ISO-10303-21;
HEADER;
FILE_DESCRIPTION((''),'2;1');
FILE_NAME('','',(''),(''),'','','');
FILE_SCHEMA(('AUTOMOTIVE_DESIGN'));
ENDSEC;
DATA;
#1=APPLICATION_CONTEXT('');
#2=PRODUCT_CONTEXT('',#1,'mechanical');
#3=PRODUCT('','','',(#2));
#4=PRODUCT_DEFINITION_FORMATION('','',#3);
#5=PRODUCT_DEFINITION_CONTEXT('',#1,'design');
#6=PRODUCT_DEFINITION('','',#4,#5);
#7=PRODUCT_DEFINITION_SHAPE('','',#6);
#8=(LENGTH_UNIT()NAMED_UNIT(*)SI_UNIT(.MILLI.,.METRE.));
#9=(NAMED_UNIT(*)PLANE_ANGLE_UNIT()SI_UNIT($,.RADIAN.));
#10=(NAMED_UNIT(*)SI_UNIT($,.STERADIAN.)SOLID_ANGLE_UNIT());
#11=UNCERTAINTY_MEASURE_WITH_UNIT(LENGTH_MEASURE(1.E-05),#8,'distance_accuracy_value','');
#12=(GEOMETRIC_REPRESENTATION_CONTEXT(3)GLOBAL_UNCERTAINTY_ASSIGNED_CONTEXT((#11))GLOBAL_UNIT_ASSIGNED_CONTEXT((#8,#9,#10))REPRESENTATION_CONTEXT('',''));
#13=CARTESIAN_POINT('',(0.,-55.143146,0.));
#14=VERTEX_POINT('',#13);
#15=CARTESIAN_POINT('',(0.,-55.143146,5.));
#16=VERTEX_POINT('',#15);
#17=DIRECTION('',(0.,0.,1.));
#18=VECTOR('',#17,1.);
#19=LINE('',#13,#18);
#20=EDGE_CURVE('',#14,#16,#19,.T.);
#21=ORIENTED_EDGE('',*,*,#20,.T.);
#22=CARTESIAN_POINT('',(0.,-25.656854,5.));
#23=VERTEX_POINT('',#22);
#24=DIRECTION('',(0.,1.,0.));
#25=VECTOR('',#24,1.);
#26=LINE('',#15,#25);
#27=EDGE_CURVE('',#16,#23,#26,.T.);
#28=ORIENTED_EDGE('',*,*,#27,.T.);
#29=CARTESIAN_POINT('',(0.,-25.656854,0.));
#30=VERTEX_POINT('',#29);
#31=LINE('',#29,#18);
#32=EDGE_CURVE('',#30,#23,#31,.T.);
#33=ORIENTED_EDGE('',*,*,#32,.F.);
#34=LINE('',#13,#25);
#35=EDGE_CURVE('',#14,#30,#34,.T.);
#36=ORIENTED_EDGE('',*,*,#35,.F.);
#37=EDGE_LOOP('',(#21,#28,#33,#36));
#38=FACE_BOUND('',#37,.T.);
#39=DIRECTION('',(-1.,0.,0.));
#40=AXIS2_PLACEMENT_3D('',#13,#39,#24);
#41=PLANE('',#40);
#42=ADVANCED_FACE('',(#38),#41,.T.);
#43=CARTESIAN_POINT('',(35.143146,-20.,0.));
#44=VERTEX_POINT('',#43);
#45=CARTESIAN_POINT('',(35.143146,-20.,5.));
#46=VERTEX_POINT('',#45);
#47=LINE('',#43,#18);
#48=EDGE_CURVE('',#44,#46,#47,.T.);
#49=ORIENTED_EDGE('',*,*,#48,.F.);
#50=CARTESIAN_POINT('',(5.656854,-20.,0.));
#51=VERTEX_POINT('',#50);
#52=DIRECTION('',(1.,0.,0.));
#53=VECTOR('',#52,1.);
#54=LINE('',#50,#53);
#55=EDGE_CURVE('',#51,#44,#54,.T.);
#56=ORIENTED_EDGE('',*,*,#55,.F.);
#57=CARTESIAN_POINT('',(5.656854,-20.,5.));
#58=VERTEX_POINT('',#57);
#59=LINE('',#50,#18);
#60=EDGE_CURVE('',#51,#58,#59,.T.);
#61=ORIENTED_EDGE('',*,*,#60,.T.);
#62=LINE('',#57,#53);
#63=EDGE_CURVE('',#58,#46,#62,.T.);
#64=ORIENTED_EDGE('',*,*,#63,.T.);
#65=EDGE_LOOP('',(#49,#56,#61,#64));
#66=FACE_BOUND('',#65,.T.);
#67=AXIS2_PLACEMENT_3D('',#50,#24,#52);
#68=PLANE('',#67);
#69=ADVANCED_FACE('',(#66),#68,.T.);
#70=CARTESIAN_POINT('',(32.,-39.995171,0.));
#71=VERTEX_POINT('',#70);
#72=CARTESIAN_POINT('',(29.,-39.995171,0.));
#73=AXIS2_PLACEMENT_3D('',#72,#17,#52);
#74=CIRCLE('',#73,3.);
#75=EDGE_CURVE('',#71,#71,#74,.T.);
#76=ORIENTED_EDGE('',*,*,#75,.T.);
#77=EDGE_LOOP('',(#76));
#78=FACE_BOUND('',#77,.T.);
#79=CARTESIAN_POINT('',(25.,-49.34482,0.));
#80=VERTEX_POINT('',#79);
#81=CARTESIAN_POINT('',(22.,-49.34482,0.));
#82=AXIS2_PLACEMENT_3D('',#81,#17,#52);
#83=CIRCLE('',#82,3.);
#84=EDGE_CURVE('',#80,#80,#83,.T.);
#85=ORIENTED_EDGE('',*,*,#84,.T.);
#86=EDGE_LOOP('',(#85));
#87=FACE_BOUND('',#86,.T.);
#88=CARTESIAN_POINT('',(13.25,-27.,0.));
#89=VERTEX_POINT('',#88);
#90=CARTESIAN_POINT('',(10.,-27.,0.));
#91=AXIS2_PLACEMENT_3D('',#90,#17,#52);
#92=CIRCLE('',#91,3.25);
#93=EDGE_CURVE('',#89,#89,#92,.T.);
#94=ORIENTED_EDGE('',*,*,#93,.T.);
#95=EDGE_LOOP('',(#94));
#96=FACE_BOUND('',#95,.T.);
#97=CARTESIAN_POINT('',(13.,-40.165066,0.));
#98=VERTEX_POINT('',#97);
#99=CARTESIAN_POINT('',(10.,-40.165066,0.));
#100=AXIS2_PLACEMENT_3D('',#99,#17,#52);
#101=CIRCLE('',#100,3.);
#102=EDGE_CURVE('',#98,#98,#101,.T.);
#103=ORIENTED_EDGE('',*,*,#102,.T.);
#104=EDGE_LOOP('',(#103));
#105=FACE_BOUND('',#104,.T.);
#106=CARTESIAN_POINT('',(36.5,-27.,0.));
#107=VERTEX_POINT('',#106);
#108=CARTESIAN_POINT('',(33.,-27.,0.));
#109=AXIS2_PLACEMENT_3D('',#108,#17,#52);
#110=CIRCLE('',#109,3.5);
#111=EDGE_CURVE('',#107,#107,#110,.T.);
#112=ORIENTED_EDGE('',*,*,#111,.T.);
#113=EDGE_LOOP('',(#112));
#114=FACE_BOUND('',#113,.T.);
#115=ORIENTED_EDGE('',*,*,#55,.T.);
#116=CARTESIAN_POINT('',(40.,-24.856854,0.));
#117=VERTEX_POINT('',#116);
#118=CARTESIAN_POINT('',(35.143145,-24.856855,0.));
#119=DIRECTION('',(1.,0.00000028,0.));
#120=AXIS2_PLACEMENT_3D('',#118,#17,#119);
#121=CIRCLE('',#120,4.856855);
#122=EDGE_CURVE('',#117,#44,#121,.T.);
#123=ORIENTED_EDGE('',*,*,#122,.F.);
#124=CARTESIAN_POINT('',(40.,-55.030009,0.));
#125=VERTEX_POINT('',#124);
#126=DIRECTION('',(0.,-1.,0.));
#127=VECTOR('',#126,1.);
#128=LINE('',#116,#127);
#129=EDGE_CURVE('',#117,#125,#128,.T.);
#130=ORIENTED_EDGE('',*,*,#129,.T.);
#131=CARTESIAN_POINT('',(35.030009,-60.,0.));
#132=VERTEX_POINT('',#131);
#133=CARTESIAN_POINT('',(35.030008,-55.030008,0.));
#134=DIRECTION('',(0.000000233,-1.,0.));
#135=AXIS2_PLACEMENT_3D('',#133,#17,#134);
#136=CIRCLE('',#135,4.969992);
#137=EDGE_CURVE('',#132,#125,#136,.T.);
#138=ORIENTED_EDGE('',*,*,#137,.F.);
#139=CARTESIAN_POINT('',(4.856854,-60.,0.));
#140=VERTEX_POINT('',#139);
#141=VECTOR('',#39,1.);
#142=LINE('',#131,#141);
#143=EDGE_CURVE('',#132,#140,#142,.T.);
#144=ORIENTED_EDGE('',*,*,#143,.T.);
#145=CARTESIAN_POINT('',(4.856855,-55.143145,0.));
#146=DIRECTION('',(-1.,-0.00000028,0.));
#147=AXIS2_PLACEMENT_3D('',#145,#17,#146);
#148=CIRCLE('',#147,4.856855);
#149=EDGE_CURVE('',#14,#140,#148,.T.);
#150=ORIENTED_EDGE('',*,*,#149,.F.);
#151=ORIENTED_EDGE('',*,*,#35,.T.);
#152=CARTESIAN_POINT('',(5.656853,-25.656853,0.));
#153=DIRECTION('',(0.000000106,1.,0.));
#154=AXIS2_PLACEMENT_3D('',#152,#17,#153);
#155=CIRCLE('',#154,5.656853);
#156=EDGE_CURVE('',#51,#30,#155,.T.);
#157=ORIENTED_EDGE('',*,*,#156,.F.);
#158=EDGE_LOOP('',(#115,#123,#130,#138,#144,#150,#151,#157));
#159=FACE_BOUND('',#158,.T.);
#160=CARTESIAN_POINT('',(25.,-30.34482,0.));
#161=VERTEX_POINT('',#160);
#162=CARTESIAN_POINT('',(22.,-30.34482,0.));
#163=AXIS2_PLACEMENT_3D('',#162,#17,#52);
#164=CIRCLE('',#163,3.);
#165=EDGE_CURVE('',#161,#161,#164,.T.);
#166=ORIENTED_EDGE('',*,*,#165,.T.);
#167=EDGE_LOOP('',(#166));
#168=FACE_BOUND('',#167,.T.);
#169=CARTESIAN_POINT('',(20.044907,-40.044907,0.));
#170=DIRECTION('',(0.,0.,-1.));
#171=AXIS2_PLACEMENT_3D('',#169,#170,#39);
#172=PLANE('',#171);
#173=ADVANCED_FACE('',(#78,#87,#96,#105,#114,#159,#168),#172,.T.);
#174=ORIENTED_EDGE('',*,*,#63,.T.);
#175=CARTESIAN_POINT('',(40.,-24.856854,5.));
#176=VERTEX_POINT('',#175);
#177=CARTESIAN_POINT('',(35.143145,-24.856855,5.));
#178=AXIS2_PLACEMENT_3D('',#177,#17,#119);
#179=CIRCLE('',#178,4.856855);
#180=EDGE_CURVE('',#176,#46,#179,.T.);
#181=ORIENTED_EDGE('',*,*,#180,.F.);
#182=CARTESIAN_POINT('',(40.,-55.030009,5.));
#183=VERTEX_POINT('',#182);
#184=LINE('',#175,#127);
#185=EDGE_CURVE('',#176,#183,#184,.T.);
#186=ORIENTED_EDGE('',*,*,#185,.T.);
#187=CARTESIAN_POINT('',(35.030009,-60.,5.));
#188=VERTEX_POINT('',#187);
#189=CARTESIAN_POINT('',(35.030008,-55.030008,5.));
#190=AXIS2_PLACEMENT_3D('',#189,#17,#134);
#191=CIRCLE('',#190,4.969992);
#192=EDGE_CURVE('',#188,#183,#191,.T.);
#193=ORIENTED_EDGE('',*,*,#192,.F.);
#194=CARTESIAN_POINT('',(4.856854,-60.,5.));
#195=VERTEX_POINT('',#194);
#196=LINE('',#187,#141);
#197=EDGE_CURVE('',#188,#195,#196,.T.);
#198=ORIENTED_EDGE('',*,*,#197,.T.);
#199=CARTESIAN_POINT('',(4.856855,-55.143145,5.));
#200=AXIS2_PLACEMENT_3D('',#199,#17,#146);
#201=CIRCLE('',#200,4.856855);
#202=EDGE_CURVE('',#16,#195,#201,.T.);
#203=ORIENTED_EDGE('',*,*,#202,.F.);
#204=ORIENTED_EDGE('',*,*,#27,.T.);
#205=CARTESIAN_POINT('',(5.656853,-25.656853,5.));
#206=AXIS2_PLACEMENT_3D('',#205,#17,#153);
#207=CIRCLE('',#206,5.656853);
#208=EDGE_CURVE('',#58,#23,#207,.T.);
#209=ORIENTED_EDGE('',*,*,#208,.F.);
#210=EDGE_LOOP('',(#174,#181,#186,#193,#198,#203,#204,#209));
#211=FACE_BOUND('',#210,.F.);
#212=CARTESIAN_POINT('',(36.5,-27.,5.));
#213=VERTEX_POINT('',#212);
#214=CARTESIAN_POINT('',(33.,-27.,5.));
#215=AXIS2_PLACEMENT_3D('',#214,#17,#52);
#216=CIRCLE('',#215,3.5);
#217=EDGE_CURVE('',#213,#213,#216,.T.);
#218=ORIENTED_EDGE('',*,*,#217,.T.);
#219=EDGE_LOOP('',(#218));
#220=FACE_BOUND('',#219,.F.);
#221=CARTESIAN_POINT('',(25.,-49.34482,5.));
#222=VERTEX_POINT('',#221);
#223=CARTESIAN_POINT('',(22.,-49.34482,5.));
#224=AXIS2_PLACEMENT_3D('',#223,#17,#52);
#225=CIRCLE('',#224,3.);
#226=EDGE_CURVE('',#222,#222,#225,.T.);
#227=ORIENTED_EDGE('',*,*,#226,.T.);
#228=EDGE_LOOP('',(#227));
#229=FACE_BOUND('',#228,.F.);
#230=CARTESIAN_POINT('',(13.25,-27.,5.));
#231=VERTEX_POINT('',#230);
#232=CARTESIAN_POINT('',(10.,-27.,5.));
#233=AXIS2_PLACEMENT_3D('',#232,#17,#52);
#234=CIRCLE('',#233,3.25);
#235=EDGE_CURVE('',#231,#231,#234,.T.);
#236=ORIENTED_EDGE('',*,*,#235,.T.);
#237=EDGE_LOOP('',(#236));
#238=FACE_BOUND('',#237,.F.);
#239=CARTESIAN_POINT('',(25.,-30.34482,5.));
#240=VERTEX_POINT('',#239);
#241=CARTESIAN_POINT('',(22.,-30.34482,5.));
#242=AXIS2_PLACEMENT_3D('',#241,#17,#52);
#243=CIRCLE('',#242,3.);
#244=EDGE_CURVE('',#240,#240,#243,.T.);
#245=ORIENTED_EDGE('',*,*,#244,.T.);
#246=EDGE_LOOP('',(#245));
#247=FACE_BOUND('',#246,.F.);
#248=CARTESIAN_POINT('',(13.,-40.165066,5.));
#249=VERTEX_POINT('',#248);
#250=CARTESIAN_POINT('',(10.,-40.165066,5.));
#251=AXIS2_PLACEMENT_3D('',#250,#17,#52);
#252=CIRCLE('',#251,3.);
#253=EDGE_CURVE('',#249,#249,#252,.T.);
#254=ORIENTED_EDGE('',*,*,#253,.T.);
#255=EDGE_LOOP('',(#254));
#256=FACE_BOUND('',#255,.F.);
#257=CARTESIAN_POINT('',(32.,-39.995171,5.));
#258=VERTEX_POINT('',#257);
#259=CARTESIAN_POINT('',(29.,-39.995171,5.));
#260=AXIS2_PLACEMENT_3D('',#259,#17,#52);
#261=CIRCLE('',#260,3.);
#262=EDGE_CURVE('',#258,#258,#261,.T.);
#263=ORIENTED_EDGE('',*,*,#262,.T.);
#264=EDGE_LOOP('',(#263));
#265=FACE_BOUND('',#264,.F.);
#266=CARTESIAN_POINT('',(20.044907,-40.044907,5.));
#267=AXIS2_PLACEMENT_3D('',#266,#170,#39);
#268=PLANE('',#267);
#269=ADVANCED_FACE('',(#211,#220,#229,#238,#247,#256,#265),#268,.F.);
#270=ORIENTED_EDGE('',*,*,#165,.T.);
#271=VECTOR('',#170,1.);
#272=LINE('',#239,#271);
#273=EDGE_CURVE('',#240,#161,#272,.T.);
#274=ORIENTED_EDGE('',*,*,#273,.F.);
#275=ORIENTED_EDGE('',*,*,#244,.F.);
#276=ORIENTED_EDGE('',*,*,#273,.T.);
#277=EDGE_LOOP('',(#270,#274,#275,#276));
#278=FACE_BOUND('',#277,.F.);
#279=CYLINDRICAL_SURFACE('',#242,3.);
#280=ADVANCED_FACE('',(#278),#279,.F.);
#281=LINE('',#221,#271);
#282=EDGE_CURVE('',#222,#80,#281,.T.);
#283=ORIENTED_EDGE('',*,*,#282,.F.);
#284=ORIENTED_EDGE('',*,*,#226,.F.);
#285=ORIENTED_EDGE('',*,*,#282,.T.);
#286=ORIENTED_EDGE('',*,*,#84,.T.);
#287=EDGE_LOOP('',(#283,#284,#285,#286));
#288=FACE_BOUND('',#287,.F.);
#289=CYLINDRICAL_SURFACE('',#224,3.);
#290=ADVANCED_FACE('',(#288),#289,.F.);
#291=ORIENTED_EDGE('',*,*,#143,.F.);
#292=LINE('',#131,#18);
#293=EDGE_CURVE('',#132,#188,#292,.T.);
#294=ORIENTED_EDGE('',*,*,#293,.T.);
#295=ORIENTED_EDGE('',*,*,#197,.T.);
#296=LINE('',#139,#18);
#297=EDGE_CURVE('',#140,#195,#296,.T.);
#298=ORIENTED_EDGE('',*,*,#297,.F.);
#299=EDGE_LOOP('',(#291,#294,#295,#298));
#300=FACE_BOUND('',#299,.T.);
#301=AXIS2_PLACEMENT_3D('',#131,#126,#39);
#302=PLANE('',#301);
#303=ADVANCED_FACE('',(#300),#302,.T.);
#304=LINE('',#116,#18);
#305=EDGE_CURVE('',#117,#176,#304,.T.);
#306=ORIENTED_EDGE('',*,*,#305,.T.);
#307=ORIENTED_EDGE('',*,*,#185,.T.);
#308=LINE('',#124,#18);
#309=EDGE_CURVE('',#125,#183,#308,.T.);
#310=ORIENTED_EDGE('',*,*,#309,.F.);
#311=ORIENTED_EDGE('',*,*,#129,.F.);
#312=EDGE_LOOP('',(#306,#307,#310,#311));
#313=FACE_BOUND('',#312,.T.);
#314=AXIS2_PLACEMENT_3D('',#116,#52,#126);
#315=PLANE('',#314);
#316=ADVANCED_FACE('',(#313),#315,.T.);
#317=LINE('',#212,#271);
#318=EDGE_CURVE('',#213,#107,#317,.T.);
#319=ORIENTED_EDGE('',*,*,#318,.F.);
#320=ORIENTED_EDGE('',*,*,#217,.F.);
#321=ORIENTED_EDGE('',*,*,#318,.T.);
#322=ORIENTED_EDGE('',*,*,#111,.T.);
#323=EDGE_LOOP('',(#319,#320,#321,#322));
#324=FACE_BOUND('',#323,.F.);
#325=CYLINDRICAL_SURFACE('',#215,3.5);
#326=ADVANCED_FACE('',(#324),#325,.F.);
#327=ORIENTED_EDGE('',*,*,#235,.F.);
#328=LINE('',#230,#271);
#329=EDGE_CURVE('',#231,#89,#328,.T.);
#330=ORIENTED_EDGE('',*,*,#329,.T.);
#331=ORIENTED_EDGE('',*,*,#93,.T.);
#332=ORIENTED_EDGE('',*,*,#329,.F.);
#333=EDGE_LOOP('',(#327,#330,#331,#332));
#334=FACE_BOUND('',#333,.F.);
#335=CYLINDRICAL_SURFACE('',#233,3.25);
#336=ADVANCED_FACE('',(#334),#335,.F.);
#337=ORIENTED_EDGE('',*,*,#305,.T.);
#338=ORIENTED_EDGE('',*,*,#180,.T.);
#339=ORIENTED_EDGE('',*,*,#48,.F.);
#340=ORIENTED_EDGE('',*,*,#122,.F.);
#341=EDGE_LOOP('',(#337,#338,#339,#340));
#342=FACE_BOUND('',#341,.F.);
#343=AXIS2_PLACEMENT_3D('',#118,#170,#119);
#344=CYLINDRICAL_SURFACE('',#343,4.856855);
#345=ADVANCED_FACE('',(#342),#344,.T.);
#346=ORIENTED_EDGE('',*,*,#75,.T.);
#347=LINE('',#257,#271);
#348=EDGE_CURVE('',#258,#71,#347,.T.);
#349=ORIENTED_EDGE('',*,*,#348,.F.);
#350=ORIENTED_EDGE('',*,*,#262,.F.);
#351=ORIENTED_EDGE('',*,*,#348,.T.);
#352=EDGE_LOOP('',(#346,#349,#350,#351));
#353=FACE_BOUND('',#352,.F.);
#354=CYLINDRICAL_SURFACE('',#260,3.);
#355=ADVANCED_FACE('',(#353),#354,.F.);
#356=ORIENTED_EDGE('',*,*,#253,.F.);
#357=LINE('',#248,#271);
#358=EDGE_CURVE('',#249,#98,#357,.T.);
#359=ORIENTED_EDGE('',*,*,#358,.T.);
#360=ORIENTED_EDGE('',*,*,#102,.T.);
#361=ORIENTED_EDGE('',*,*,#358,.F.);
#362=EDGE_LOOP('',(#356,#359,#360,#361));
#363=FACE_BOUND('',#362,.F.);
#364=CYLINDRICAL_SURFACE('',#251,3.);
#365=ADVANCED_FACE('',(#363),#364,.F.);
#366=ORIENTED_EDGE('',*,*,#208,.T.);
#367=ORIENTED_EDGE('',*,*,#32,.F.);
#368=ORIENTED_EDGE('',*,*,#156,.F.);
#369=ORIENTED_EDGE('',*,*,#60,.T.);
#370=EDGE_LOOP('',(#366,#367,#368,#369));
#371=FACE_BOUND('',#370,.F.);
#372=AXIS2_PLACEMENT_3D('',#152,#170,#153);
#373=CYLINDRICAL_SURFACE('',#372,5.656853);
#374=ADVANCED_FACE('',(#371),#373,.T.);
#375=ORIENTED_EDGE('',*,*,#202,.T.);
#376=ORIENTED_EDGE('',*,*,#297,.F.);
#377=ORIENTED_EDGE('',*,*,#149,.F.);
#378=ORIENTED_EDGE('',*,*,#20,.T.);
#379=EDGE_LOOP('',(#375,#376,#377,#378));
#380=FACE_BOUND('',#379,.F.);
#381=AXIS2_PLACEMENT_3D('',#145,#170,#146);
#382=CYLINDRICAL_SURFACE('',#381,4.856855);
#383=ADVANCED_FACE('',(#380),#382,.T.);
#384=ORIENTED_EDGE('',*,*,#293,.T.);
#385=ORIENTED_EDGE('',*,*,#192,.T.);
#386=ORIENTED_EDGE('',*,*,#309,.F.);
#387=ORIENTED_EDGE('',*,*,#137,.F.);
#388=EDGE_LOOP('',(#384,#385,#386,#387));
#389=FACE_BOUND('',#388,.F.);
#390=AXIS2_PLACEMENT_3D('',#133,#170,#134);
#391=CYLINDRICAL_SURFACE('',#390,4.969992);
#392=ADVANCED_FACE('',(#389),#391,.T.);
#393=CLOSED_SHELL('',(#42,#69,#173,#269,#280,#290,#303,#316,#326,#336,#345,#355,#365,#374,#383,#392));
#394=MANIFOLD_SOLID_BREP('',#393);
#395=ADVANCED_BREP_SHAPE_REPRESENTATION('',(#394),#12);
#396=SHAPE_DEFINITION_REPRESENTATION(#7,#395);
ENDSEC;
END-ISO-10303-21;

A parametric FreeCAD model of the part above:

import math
import FreeCAD as App
import Part
import Sketcher

doc = App.newDocument("Part")
body = doc.addObject("PartDesign::Body", "Body")

sketch1 = body.newObject("Sketcher::SketchObject", "Sketch")
sketch1.AttachmentSupport = (doc.getObject("XY_Plane"), [""])
sketch1.MapMode = "FlatFace"
sketch1.addGeometry([
    Part.LineSegment(App.Vector(35.1, -20, 0), App.Vector(5.7, -20, 0)),
    Part.ArcOfCircle(Part.Circle(App.Vector(5.7, -25.7, 0), App.Vector(0, 0, 1), 5.7), math.radians(90), math.radians(180)),
    Part.LineSegment(App.Vector(0, -25.7, 0), App.Vector(0, -55.1, 0)),
    Part.ArcOfCircle(Part.Circle(App.Vector(4.9, -55.1, 0), App.Vector(0, 0, 1), 4.9), math.radians(-180), math.radians(-90)),
    Part.LineSegment(App.Vector(4.9, -60, 0), App.Vector(35, -60, 0)),
    Part.ArcOfCircle(Part.Circle(App.Vector(35, -55, 0), App.Vector(0, 0, 1), 5), math.radians(-90), math.radians(0)),
    Part.LineSegment(App.Vector(40, -55, 0), App.Vector(40, -24.9, 0)),
    Part.ArcOfCircle(Part.Circle(App.Vector(35.1, -24.9, 0), App.Vector(0, 0, 1), 4.9), math.radians(0), math.radians(90)),
], False)
sketch1.addConstraint([
    Sketcher.Constraint("Tangent", 0, 2, 1, 1),
    Sketcher.Constraint("Tangent", 1, 2, 2, 1),
    Sketcher.Constraint("Tangent", 2, 2, 3, 1),
    Sketcher.Constraint("Tangent", 3, 2, 4, 1),
    Sketcher.Constraint("Tangent", 4, 2, 5, 1),
    Sketcher.Constraint("Tangent", 5, 2, 6, 1),
    Sketcher.Constraint("Tangent", 6, 2, 7, 1),
    Sketcher.Constraint("Tangent", 7, 2, 0, 1),
    Sketcher.Constraint("Horizontal", 0),
    Sketcher.Constraint("Vertical", 2),
    Sketcher.Constraint("Horizontal", 4),
    Sketcher.Constraint("Vertical", 6),
    Sketcher.Constraint("Equal", 3, 7),
    Sketcher.Constraint("PointOnObject", 1, 2, -2),
    Sketcher.Constraint("Equal", 0, 2),
    Sketcher.Constraint("DistanceY", 0, 2, -1, 1, 20.0),
    Sketcher.Constraint("DistanceY", 3, 2, -1, 1, 60.0),
    Sketcher.Constraint("DistanceX", 3, 3, 1, 3, 0.799998),
    Sketcher.Constraint("Radius", 1, 5.656853),
    Sketcher.Constraint("Radius", 5, 4.969992),
])
pad1 = body.newObject("PartDesign::Pad", "Pad")
pad1.Profile = sketch1
pad1.Length = 5

sketch2 = body.newObject("Sketcher::SketchObject", "Sketch001")
sketch2.AttachmentSupport = (doc.getObject("XY_Plane"), [""])
sketch2.MapMode = "FlatFace"
sketch2.AttachmentOffset = App.Placement(App.Vector(0, 0, 5), App.Rotation())
sketch2.addGeometry([
    Part.Circle(App.Vector(22, -49.3, 0), App.Vector(0, 0, 1), 3),
    Part.Circle(App.Vector(22, -30.3, 0), App.Vector(0, 0, 1), 3),
], False)
sketch2.addConstraint([
    Sketcher.Constraint("Equal", 0, 1),
    Sketcher.Constraint("Vertical", 0, 3, 1, 3),
    Sketcher.Constraint("Diameter", 0, 6.0),
    Sketcher.Constraint("DistanceX", -1, 1, 0, 3, 22.0),
    Sketcher.Constraint("DistanceY", 0, 3, 1, 3, 19.0),
    Sketcher.Constraint("DistanceY", 0, 3, -1, 1, 49.34482),
])
pocket1 = body.newObject("PartDesign::Pocket", "Pocket")
pocket1.Profile = sketch2
pocket1.Type = "ThroughAll"

sketch3 = body.newObject("Sketcher::SketchObject", "Sketch002")
sketch3.AttachmentSupport = (doc.getObject("XY_Plane"), [""])
sketch3.MapMode = "FlatFace"
sketch3.AttachmentOffset = App.Placement(App.Vector(0, 0, 5), App.Rotation())
sketch3.addGeometry([
    Part.Circle(App.Vector(10, -40.2, 0), App.Vector(0, 0, 1), 3),
    Part.Circle(App.Vector(29, -40, 0), App.Vector(0, 0, 1), 3),
], False)
sketch3.addConstraint([
    Sketcher.Constraint("Equal", 0, 1),
    Sketcher.Constraint("Diameter", 0, 6.0),
    Sketcher.Constraint("DistanceX", -1, 1, 0, 3, 10.0),
    Sketcher.Constraint("DistanceX", -1, 1, 1, 3, 29.0),
    Sketcher.Constraint("DistanceY", 1, 3, -1, 1, 39.995171),
    Sketcher.Constraint("DistanceY", 0, 3, -1, 1, 40.165066),
])
pocket2 = body.newObject("PartDesign::Pocket", "Pocket001")
pocket2.Profile = sketch3
pocket2.Type = "ThroughAll"

sketch4 = body.newObject("Sketcher::SketchObject", "Sketch003")
sketch4.AttachmentSupport = (doc.getObject("XY_Plane"), [""])
sketch4.MapMode = "FlatFace"
sketch4.AttachmentOffset = App.Placement(App.Vector(0, 0, 5), App.Rotation())
sketch4.addGeometry(Part.Circle(App.Vector(33, -27, 0), App.Vector(0, 0, 1), 3.5), False)
sketch4.addConstraint([
    Sketcher.Constraint("Diameter", 0, 7.0),
    Sketcher.Constraint("DistanceX", -1, 1, 0, 3, 33.0),
    Sketcher.Constraint("DistanceY", 0, 3, -1, 1, 27.0),
])
pocket3 = body.newObject("PartDesign::Pocket", "Pocket002")
pocket3.Profile = sketch4
pocket3.Type = "ThroughAll"

sketch5 = body.newObject("Sketcher::SketchObject", "Sketch004")
sketch5.AttachmentSupport = (doc.getObject("XY_Plane"), [""])
sketch5.MapMode = "FlatFace"
sketch5.AttachmentOffset = App.Placement(App.Vector(0, 0, 5), App.Rotation())
sketch5.addGeometry(Part.Circle(App.Vector(10, -27, 0), App.Vector(0, 0, 1), 3.2), False)
sketch5.addConstraint([
    Sketcher.Constraint("Diameter", 0, 6.5),
    Sketcher.Constraint("DistanceX", -1, 1, 0, 3, 10.0),
    Sketcher.Constraint("DistanceY", 0, 3, -1, 1, 27.0),
])
pocket4 = body.newObject("PartDesign::Pocket", "Pocket003")
pocket4.Profile = sketch5
pocket4.Type = "ThroughAll"

doc.recompute()
